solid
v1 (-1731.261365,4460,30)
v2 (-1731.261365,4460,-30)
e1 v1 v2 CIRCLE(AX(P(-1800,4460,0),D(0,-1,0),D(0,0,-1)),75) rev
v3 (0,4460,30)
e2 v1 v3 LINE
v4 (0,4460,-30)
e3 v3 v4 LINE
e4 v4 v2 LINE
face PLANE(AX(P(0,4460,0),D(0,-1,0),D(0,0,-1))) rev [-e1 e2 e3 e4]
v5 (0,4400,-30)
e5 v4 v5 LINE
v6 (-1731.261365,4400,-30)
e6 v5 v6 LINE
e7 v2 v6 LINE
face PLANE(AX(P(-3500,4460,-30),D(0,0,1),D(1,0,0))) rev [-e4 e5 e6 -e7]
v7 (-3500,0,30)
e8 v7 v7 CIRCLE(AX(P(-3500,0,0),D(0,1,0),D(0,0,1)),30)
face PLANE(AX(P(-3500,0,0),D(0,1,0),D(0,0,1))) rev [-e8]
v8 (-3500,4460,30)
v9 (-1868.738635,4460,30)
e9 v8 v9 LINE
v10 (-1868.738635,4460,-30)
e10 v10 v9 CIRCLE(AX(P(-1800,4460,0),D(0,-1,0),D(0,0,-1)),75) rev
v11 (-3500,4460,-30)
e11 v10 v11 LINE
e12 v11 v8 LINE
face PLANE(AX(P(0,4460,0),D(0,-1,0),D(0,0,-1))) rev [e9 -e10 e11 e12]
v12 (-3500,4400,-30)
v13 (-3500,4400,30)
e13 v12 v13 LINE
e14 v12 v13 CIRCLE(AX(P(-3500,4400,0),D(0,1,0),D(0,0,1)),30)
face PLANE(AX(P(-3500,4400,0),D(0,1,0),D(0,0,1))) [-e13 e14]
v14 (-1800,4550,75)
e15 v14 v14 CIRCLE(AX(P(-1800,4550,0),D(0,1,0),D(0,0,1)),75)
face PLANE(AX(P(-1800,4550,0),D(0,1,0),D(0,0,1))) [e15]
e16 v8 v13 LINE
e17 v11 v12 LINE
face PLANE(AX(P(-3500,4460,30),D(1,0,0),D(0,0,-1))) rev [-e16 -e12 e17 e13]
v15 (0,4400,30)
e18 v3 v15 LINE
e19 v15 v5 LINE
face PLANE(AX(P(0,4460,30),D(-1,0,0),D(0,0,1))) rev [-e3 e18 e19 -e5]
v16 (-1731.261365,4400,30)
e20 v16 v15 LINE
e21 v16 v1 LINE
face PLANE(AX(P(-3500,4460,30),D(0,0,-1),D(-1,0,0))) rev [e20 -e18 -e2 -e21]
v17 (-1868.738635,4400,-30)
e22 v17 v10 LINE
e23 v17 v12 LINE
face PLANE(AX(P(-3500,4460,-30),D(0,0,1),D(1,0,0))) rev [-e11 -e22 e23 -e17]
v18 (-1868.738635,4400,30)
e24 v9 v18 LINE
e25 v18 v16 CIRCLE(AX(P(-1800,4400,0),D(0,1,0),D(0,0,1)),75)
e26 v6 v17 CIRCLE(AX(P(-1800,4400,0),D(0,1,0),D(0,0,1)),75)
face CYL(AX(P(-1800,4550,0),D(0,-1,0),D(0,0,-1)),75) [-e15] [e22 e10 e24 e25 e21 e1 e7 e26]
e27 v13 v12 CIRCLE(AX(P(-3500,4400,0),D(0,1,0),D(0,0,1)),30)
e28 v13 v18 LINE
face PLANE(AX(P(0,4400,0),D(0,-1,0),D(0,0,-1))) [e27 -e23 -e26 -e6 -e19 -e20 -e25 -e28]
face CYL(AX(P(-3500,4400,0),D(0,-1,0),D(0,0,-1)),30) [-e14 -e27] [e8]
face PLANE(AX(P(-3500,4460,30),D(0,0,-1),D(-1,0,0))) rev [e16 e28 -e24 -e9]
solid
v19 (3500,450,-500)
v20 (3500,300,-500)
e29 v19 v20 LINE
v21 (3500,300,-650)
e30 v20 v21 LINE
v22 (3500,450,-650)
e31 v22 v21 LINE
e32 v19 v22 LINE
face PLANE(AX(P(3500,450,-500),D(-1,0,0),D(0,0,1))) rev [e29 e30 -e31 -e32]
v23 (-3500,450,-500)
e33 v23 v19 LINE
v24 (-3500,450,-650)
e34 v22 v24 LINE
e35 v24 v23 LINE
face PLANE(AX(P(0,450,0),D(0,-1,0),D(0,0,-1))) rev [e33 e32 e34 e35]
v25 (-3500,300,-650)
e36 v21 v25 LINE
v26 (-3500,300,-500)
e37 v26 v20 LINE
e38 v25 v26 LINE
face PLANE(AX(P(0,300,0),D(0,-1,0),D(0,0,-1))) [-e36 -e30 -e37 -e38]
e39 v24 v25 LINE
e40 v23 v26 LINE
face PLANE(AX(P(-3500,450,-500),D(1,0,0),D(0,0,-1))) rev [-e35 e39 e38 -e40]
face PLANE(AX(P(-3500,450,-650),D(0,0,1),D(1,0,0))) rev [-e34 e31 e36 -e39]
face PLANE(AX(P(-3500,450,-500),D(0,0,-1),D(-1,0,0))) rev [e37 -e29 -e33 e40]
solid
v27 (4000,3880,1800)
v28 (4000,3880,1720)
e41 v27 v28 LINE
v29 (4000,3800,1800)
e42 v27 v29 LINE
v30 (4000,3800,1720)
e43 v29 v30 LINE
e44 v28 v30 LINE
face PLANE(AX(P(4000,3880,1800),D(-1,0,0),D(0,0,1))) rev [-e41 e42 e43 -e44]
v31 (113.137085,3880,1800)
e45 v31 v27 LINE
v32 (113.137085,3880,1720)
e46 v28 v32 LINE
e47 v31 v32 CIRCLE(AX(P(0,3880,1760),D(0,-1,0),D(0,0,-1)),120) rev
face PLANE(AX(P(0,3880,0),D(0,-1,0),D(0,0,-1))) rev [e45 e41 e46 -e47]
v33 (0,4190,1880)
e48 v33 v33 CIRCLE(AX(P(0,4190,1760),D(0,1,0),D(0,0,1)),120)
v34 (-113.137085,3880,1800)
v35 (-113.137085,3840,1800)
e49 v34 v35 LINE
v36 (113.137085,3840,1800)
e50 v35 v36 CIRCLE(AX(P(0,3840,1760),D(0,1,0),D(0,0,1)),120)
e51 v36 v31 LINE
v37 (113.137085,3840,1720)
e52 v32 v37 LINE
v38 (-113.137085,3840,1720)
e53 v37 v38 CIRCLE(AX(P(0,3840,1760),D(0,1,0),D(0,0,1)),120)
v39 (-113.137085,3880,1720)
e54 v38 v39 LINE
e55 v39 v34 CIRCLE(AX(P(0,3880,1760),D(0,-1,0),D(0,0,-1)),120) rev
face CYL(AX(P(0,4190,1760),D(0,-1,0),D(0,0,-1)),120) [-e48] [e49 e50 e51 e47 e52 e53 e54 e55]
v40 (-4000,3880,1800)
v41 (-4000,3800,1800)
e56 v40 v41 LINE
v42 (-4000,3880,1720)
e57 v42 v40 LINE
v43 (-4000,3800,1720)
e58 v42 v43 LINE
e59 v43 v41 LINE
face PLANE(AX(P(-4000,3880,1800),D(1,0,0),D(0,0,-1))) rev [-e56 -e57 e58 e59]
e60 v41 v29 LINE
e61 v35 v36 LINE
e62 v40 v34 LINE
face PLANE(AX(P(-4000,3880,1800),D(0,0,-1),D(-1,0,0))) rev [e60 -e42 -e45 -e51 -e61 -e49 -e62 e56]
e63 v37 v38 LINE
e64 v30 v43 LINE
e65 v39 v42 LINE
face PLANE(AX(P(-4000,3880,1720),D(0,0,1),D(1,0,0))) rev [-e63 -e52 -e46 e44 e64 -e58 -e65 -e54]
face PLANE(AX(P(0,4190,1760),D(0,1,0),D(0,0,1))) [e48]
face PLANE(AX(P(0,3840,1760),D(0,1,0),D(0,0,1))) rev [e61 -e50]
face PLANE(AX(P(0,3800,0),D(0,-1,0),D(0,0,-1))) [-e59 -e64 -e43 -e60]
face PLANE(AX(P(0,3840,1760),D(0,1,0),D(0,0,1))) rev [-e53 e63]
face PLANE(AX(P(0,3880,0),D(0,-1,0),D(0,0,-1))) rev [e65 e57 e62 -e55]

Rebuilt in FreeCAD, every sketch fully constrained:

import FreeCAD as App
import Part
import Sketcher
from FreeCAD import Vector

doc = App.newDocument("Part")
body = doc.addObject("PartDesign::Body", "Body")

sketch1 = body.newObject("Sketcher::SketchObject", "Sketch")
sketch1.AttachmentSupport = (doc.getObject("XZ_Plane"), [""])
sketch1.MapMode = "FlatFace"
sketch1.addGeometry(Part.Circle(Vector(-3500, 0, 0), Vector(0, 0, 1), 30), False)
sketch1.addConstraint(Sketcher.Constraint("PointOnObject", 0, 3, -1))
sketch1.addConstraint(Sketcher.Constraint("Diameter", 0, 60.0))
sketch1.addConstraint(Sketcher.Constraint("DistanceX", 0, 3, -1, 1, 3500.0))
pad1 = body.newObject("PartDesign::Pad", "Pad")
pad1.Profile = sketch1
pad1.Length = 4400
pad1.Reversed = True

sketch2 = body.newObject("Sketcher::SketchObject", "Sketch001")
sketch2.AttachmentSupport = (doc.getObject("XZ_Plane"), [""])
sketch2.MapMode = "FlatFace"
sketch2.AttachmentOffset = App.Placement(Vector(0, 0, -4400), App.Rotation())
sketch2.addGeometry(Part.LineSegment(Vector(-3500, -30, 0), Vector(-3500, 30, 0)), False)
sketch2.addGeometry(Part.LineSegment(Vector(-3500, 30, 0), Vector(0, 30, 0)), False)
sketch2.addGeometry(Part.LineSegment(Vector(0, 30, 0), Vector(0, -30, 0)), False)
sketch2.addGeometry(Part.LineSegment(Vector(0, -30, 0), Vector(-3500, -30, 0)), False)
sketch2.addConstraint(Sketcher.Constraint("Coincident", 0, 2, 1, 1))
sketch2.addConstraint(Sketcher.Constraint("Coincident", 1, 2, 2, 1))
sketch2.addConstraint(Sketcher.Constraint("Coincident", 2, 2, 3, 1))
sketch2.addConstraint(Sketcher.Constraint("Coincident", 3, 2, 0, 1))
sketch2.addConstraint(Sketcher.Constraint("Vertical", 0))
sketch2.addConstraint(Sketcher.Constraint("Horizontal", 1))
sketch2.addConstraint(Sketcher.Constraint("Vertical", 2))
sketch2.addConstraint(Sketcher.Constraint("Horizontal", 3))
sketch2.addConstraint(Sketcher.Constraint("Symmetric", 1, 2, 2, 2, -1, 1))
sketch2.addConstraint(Sketcher.Constraint("DistanceX", 1, 1, 1, 2, 3500.0))
sketch2.addConstraint(Sketcher.Constraint("DistanceY", 0, 1, 0, 2, 60.0))
pad2 = body.newObject("PartDesign::Pad", "Pad001")
pad2.Profile = sketch2
pad2.Length = 60
pad2.Reversed = True

sketch3 = body.newObject("Sketcher::SketchObject", "Sketch002")
sketch3.AttachmentSupport = (doc.getObject("XZ_Plane"), [""])
sketch3.MapMode = "FlatFace"
sketch3.AttachmentOffset = App.Placement(Vector(0, 0, -4400), App.Rotation())
sketch3.addGeometry(Part.Circle(Vector(-1800, 0, 0), Vector(0, 0, 1), 75), False)
sketch3.addConstraint(Sketcher.Constraint("PointOnObject", 0, 3, -1))
sketch3.addConstraint(Sketcher.Constraint("Diameter", 0, 150.0))
sketch3.addConstraint(Sketcher.Constraint("DistanceX", 0, 3, -1, 1, 1800.0))
pad3 = body.newObject("PartDesign::Pad", "Pad002")
pad3.Profile = sketch3
pad3.Length = 150
pad3.Reversed = True
body2 = doc.addObject("PartDesign::Body", "Body001")

sketch4 = body2.newObject("Sketcher::SketchObject", "Sketch003")
sketch4.AttachmentSupport = (doc.getObject("XZ_Plane001"), [""])
sketch4.MapMode = "FlatFace"
sketch4.AttachmentOffset = App.Placement(Vector(0, 0, -3800), App.Rotation())
sketch4.addGeometry(Part.LineSegment(Vector(-4000, 1720, 0), Vector(-4000, 1800, 0)), False)
sketch4.addGeometry(Part.LineSegment(Vector(-4000, 1800, 0), Vector(4000, 1800, 0)), False)
sketch4.addGeometry(Part.LineSegment(Vector(4000, 1800, 0), Vector(4000, 1720, 0)), False)
sketch4.addGeometry(Part.LineSegment(Vector(4000, 1720, 0), Vector(-4000, 1720, 0)), False)
sketch4.addConstraint(Sketcher.Constraint("Coincident", 0, 2, 1, 1))
sketch4.addConstraint(Sketcher.Constraint("Coincident", 1, 2, 2, 1))
sketch4.addConstraint(Sketcher.Constraint("Coincident", 2, 2, 3, 1))
sketch4.addConstraint(Sketcher.Constraint("Coincident", 3, 2, 0, 1))
sketch4.addConstraint(Sketcher.Constraint("Vertical", 0))
sketch4.addConstraint(Sketcher.Constraint("Horizontal", 1))
sketch4.addConstraint(Sketcher.Constraint("Vertical", 2))
sketch4.addConstraint(Sketcher.Constraint("Horizontal", 3))
sketch4.addConstraint(Sketcher.Constraint("DistanceX", 1, 1, 1, 2, 8000.0))
sketch4.addConstraint(Sketcher.Constraint("DistanceY", 0, 1, 0, 2, 80.0))
sketch4.addConstraint(Sketcher.Constraint("DistanceX", 0, 2, -1, 1, 4000.0))
sketch4.addConstraint(Sketcher.Constraint("DistanceY", -1, 1, 0, 2, 1800.0))
pad4 = body2.newObject("PartDesign::Pad", "Pad003")
pad4.Profile = sketch4
pad4.Length = 80
pad4.Reversed = True

sketch5 = body2.newObject("Sketcher::SketchObject", "Sketch004")
sketch5.AttachmentSupport = (doc.getObject("XZ_Plane001"), [""])
sketch5.MapMode = "FlatFace"
sketch5.AttachmentOffset = App.Placement(Vector(0, 0, -3840), App.Rotation())
sketch5.addGeometry(Part.Circle(Vector(0, 1760, 0), Vector(0, 0, 1), 120), False)
sketch5.addConstraint(Sketcher.Constraint("PointOnObject", 0, 3, -2))
sketch5.addConstraint(Sketcher.Constraint("Diameter", 0, 240.0))
sketch5.addConstraint(Sketcher.Constraint("DistanceY", -1, 1, 0, 3, 1760.0))
pad5 = body2.newObject("PartDesign::Pad", "Pad004")
pad5.Profile = sketch5
pad5.Length = 350
pad5.Reversed = True
body3 = doc.addObject("PartDesign::Body", "Body002")

sketch6 = body3.newObject("Sketcher::SketchObject", "Sketch005")
sketch6.AttachmentSupport = (doc.getObject("XZ_Plane002"), [""])
sketch6.MapMode = "FlatFace"
sketch6.AttachmentOffset = App.Placement(Vector(0, 0, -300), App.Rotation())
sketch6.addGeometry(Part.LineSegment(Vector(-3500, -650, 0), Vector(-3500, -500, 0)), False)
sketch6.addGeometry(Part.LineSegment(Vector(-3500, -500, 0), Vector(3500, -500, 0)), False)
sketch6.addGeometry(Part.LineSegment(Vector(3500, -500, 0), Vector(3500, -650, 0)), False)
sketch6.addGeometry(Part.LineSegment(Vector(3500, -650, 0), Vector(-3500, -650, 0)), False)
sketch6.addConstraint(Sketcher.Constraint("Coincident", 0, 2, 1, 1))
sketch6.addConstraint(Sketcher.Constraint("Coincident", 1, 2, 2, 1))
sketch6.addConstraint(Sketcher.Constraint("Coincident", 2, 2, 3, 1))
sketch6.addConstraint(Sketcher.Constraint("Coincident", 3, 2, 0, 1))
sketch6.addConstraint(Sketcher.Constraint("Vertical", 0))
sketch6.addConstraint(Sketcher.Constraint("Horizontal", 1))
sketch6.addConstraint(Sketcher.Constraint("Vertical", 2))
sketch6.addConstraint(Sketcher.Constraint("Horizontal", 3))
sketch6.addConstraint(Sketcher.Constraint("DistanceX", 1, 1, 1, 2, 7000.0))
sketch6.addConstraint(Sketcher.Constraint("DistanceY", 0, 1, 0, 2, 150.0))
sketch6.addConstraint(Sketcher.Constraint("DistanceX", 0, 2, -1, 1, 3500.0))
sketch6.addConstraint(Sketcher.Constraint("DistanceY", 0, 2, -1, 1, 500.0))
pad6 = body3.newObject("PartDesign::Pad", "Pad005")
pad6.Profile = sketch6
pad6.Length = 150
pad6.Reversed = True

doc.recompute()
